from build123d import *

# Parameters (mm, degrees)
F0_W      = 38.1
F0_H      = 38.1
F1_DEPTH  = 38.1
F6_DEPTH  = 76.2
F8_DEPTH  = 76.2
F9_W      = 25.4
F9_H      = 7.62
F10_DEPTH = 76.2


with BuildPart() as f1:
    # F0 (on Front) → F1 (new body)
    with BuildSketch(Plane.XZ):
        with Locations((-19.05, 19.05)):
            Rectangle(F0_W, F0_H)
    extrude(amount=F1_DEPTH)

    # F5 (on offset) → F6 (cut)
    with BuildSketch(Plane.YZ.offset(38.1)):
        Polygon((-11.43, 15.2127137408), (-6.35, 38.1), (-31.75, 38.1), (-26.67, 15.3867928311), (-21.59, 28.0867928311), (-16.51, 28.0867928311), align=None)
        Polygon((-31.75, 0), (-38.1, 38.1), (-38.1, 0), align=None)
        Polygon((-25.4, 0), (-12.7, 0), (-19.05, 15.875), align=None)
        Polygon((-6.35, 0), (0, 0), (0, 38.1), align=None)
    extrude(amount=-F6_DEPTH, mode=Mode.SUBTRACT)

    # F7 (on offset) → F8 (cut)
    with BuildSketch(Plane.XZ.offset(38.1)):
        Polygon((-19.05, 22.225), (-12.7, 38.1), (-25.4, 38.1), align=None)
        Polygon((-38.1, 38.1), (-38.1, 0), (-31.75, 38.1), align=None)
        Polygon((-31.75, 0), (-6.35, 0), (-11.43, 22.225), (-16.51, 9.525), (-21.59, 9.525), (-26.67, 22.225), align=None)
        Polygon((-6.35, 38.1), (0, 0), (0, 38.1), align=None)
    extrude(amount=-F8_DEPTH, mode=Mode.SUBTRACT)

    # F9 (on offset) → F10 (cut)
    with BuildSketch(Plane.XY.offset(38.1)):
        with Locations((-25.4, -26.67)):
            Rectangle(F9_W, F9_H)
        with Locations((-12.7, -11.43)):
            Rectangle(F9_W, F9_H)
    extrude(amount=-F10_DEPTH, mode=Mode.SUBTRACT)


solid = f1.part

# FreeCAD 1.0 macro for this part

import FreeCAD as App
import Part
import Sketcher

V = App.Vector
Q = App.Units.Quantity


def add_polygon(sketch, points):
    """Adds a closed chain of lines whose ends are joined by coincident constraints."""
    first, n = sketch.GeometryCount, len(points)
    for a, b in zip(points, points[1:] + points[:1]):
        sketch.addGeometry(Part.LineSegment(App.Vector(*a, 0), App.Vector(*b, 0)), False)
    for i in range(n):
        sketch.addConstraint(Sketcher.Constraint("Coincident", first + i, 2, first + (i + 1) % n, 1))

doc = App.newDocument("Part")
body = doc.addObject("PartDesign::Body", "Body")

# Sketch on XZ plane
sketch1 = body.newObject("Sketcher::SketchObject", "Sketch")
sketch1.AttachmentSupport = (doc.getObject("XZ_Plane"), [""])
sketch1.MapMode = "FlatFace"
add_polygon(sketch1, [(-38, 38), (-38, 0), (0, 0), (0, 38)])  # lines 0-3
sketch1.addConstraint([
    Sketcher.Constraint("Vertical", 0),
    Sketcher.Constraint("Horizontal", 1),
    Sketcher.Constraint("Vertical", 2),
    Sketcher.Constraint("Horizontal", 3),
    Sketcher.Constraint("Coincident", 1, 2, -1, 1),
    Sketcher.Constraint("Equal", 3, 0),
    Sketcher.Constraint("DistanceX", 1, 1, 1, 2, Q("1.5 in")),
])
pad1 = body.newObject("PartDesign::Pad", "Pad")
pad1.Profile = sketch1
pad1.Length = Q("1.5 in")

# Sketch on YZ plane
sketch2 = body.newObject("Sketcher::SketchObject", "Sketch001")
sketch2.AttachmentSupport = (doc.getObject("YZ_Plane"), [""])
sketch2.MapMode = "FlatFace"
sketch2.AttachmentOffset = App.Placement(V(0, 0, 1.5 * 25.4), App.Rotation())
add_polygon(sketch2, [(-11, 15), (-6, 38), (-32, 38), (-27, 15), (-22, 28), (-17, 28)])  # lines 0-5
add_polygon(sketch2, [(-32, 0), (-38, 38), (-38, 0)])  # lines 6-8
add_polygon(sketch2, [(-25, 0), (-13, 0), (-19, 16)])  # lines 9-11
add_polygon(sketch2, [(-6, 0), (0, 0), (0, 38)])  # lines 12-14
sketch2.addConstraint([
    Sketcher.Constraint("Horizontal", 1),
    Sketcher.Constraint("Horizontal", 4),
    Sketcher.Constraint("Vertical", 7),
    Sketcher.Constraint("Horizontal", 8),
    Sketcher.Constraint("Horizontal", 9),
    Sketcher.Constraint("Horizontal", 12),
    Sketcher.Constraint("Vertical", 13),
    Sketcher.Constraint("Coincident", 12, 2, -1, 1),
    Sketcher.Constraint("PointOnObject", 7, 2, -1),
    Sketcher.Constraint("PointOnObject", 9, 2, -1),
    Sketcher.Constraint("Parallel", 3, 11),
    Sketcher.Constraint("Horizontal", 1, 2, 6, 2),
    Sketcher.Constraint("Horizontal", 6, 2, 13, 2),
    Sketcher.Constraint("Vertical", 1, 2, 8, 2),
    Sketcher.Constraint("Vertical", 0, 2, 14, 2),
    Sketcher.Constraint("Equal", 8, 12),
    Sketcher.Constraint("Equal", 10, 11),
    Sketcher.Constraint("DistanceX", 1, 2, 1, 1, Q("1 in")),
    Sketcher.Constraint("DistanceX", 4, 1, 4, 2, Q("0.2 in")),
    Sketcher.Constraint("DistanceX", 9, 1, 9, 2, Q("0.5 in")),
    Sketcher.Constraint("DistanceY", 7, 2, 7, 1, Q("1.5 in")),
    Sketcher.Constraint("DistanceX", 11, 2, -1, 1, Q("1 in")),
    Sketcher.Constraint("DistanceX", 7, 2, 9, 2, Q("1 in")),
    Sketcher.Constraint("DistanceX", 1, 2, 2, 2, Q("0.2 in")),
    Sketcher.Constraint("DistanceX", 2, 2, 3, 2, Q("0.2 in")),
    Sketcher.Constraint("DistanceY", 2, 2, 3, 2, Q("0.5 in")),
    Sketcher.Constraint("DistanceX", 4, 2, 5, 2, Q("0.2 in")),
    Sketcher.Constraint("Distance", 0, Q("23.44428 mm")),
    Sketcher.Constraint("DistanceY", 5, 2, 4, 2, Q("12.874079 mm")),
])
pocket1 = body.newObject("PartDesign::Pocket", "Pocket")
pocket1.Profile = sketch2
pocket1.Length = Q("3 in")

# Sketch on XZ plane
sketch3 = body.newObject("Sketcher::SketchObject", "Sketch002")
sketch3.AttachmentSupport = (doc.getObject("XZ_Plane"), [""])
sketch3.MapMode = "FlatFace"
sketch3.AttachmentOffset = App.Placement(V(0, 0, 1.5 * 25.4), App.Rotation())
add_polygon(sketch3, [(-19, 22), (-13, 38), (-25, 38)])  # lines 0-2
add_polygon(sketch3, [(-38, 38), (-38, 0), (-32, 38)])  # lines 3-5
add_polygon(sketch3, [(-32, 0), (-6, 0), (-11, 22), (-17, 10), (-22, 10), (-27, 22)])  # lines 6-11
add_polygon(sketch3, [(-6, 38), (0, 0), (0, 38)])  # lines 12-14
sketch3.addConstraint([
    Sketcher.Constraint("Horizontal", 1),
    Sketcher.Constraint("Vertical", 3),
    Sketcher.Constraint("Horizontal", 5),
    Sketcher.Constraint("Horizontal", 6),
    Sketcher.Constraint("Horizontal", 9),
    Sketcher.Constraint("Vertical", 13),
    Sketcher.Constraint("Horizontal", 14),
    Sketcher.Constraint("Coincident", 12, 2, -1, 1),
    Sketcher.Constraint("PointOnObject", 3, 2, -1),
    Sketcher.Constraint("PointOnObject", 6, 2, -1),
    Sketcher.Constraint("Parallel", 0, 8),
    Sketcher.Constraint("Parallel", 2, 10),
    Sketcher.Constraint("Horizontal", 1, 2, 4, 2),
    Sketcher.Constraint("Horizontal", 2, 2, 7, 2),
    Sketcher.Constraint("Horizontal", 7, 2, 10, 2),
    Sketcher.Constraint("Horizontal", 5, 2, 13, 2),
    Sketcher.Constraint("Vertical", 4, 2, 11, 2),
    Sketcher.Constraint("Vertical", 6, 2, 14, 2),
    Sketcher.Constraint("Equal", 5, 14),
    Sketcher.Constraint("Equal", 0, 2),
    Sketcher.Constraint("Equal", 7, 11),
    Sketcher.Constraint("DistanceX", 6, 1, 6, 2, Q("1 in")),
    Sketcher.Constraint("DistanceX", 1, 2, 1, 1, Q("0.5 in")),
    Sketcher.Constraint("DistanceX", 9, 2, 9, 1, Q("0.2 in")),
    Sketcher.Constraint("DistanceY", 3, 2, 3, 1, Q("1.5 in")),
    Sketcher.Constraint("DistanceX", 1, 2, -1, 1, Q("1 in")),
    Sketcher.Constraint("DistanceX", 3, 2, 0, 2, Q("1 in")),
    Sketcher.Constraint("DistanceX", 2, 2, 7, 2, Q("0.3 in")),
    Sketcher.Constraint("DistanceY", 8, 2, 2, 2, Q("0.5 in")),
])
pocket2 = body.newObject("PartDesign::Pocket", "Pocket001")
pocket2.Profile = sketch3
pocket2.Length = Q("3 in")

# Sketch on XY plane
sketch4 = body.newObject("Sketcher::SketchObject", "Sketch003")
sketch4.AttachmentSupport = (doc.getObject("XY_Plane"), [""])
sketch4.MapMode = "FlatFace"
sketch4.AttachmentOffset = App.Placement(V(0, 0, 1.5 * 25.4), App.Rotation())
add_polygon(sketch4, [(-38, -23), (-38, -30), (-13, -30), (-13, -23)])  # lines 0-3
add_polygon(sketch4, [(-25, -8), (-25, -15), (0, -15), (0, -8)])  # lines 4-7
sketch4.addConstraint([
    Sketcher.Constraint("Vertical", 0),
    Sketcher.Constraint("Horizontal", 1),
    Sketcher.Constraint("Vertical", 2),
    Sketcher.Constraint("Horizontal", 3),
    Sketcher.Constraint("Vertical", 4),
    Sketcher.Constraint("Horizontal", 5),
    Sketcher.Constraint("Vertical", 6),
    Sketcher.Constraint("Horizontal", 7),
    Sketcher.Constraint("PointOnObject", 5, 2, -2),
    Sketcher.Constraint("Equal", 3, 5),
    Sketcher.Constraint("Equal", 2, 4),
    Sketcher.Constraint("DistanceX", 1, 1, 1, 2, Q("1 in")),
    Sketcher.Constraint("DistanceY", 0, 2, 0, 1, Q("0.3 in")),
    Sketcher.Constraint("DistanceX", 0, 2, -1, 1, Q("1.5 in")),
    Sketcher.Constraint("DistanceY", 0, 2, -1, 1, Q("1.2 in")),
    Sketcher.Constraint("DistanceY", 4, 2, -1, 1, Q("0.6 in")),
])
pocket3 = body.newObject("PartDesign::Pocket", "Pocket002")
pocket3.Profile = sketch4
pocket3.Length = Q("3 in")

doc.recompute()
